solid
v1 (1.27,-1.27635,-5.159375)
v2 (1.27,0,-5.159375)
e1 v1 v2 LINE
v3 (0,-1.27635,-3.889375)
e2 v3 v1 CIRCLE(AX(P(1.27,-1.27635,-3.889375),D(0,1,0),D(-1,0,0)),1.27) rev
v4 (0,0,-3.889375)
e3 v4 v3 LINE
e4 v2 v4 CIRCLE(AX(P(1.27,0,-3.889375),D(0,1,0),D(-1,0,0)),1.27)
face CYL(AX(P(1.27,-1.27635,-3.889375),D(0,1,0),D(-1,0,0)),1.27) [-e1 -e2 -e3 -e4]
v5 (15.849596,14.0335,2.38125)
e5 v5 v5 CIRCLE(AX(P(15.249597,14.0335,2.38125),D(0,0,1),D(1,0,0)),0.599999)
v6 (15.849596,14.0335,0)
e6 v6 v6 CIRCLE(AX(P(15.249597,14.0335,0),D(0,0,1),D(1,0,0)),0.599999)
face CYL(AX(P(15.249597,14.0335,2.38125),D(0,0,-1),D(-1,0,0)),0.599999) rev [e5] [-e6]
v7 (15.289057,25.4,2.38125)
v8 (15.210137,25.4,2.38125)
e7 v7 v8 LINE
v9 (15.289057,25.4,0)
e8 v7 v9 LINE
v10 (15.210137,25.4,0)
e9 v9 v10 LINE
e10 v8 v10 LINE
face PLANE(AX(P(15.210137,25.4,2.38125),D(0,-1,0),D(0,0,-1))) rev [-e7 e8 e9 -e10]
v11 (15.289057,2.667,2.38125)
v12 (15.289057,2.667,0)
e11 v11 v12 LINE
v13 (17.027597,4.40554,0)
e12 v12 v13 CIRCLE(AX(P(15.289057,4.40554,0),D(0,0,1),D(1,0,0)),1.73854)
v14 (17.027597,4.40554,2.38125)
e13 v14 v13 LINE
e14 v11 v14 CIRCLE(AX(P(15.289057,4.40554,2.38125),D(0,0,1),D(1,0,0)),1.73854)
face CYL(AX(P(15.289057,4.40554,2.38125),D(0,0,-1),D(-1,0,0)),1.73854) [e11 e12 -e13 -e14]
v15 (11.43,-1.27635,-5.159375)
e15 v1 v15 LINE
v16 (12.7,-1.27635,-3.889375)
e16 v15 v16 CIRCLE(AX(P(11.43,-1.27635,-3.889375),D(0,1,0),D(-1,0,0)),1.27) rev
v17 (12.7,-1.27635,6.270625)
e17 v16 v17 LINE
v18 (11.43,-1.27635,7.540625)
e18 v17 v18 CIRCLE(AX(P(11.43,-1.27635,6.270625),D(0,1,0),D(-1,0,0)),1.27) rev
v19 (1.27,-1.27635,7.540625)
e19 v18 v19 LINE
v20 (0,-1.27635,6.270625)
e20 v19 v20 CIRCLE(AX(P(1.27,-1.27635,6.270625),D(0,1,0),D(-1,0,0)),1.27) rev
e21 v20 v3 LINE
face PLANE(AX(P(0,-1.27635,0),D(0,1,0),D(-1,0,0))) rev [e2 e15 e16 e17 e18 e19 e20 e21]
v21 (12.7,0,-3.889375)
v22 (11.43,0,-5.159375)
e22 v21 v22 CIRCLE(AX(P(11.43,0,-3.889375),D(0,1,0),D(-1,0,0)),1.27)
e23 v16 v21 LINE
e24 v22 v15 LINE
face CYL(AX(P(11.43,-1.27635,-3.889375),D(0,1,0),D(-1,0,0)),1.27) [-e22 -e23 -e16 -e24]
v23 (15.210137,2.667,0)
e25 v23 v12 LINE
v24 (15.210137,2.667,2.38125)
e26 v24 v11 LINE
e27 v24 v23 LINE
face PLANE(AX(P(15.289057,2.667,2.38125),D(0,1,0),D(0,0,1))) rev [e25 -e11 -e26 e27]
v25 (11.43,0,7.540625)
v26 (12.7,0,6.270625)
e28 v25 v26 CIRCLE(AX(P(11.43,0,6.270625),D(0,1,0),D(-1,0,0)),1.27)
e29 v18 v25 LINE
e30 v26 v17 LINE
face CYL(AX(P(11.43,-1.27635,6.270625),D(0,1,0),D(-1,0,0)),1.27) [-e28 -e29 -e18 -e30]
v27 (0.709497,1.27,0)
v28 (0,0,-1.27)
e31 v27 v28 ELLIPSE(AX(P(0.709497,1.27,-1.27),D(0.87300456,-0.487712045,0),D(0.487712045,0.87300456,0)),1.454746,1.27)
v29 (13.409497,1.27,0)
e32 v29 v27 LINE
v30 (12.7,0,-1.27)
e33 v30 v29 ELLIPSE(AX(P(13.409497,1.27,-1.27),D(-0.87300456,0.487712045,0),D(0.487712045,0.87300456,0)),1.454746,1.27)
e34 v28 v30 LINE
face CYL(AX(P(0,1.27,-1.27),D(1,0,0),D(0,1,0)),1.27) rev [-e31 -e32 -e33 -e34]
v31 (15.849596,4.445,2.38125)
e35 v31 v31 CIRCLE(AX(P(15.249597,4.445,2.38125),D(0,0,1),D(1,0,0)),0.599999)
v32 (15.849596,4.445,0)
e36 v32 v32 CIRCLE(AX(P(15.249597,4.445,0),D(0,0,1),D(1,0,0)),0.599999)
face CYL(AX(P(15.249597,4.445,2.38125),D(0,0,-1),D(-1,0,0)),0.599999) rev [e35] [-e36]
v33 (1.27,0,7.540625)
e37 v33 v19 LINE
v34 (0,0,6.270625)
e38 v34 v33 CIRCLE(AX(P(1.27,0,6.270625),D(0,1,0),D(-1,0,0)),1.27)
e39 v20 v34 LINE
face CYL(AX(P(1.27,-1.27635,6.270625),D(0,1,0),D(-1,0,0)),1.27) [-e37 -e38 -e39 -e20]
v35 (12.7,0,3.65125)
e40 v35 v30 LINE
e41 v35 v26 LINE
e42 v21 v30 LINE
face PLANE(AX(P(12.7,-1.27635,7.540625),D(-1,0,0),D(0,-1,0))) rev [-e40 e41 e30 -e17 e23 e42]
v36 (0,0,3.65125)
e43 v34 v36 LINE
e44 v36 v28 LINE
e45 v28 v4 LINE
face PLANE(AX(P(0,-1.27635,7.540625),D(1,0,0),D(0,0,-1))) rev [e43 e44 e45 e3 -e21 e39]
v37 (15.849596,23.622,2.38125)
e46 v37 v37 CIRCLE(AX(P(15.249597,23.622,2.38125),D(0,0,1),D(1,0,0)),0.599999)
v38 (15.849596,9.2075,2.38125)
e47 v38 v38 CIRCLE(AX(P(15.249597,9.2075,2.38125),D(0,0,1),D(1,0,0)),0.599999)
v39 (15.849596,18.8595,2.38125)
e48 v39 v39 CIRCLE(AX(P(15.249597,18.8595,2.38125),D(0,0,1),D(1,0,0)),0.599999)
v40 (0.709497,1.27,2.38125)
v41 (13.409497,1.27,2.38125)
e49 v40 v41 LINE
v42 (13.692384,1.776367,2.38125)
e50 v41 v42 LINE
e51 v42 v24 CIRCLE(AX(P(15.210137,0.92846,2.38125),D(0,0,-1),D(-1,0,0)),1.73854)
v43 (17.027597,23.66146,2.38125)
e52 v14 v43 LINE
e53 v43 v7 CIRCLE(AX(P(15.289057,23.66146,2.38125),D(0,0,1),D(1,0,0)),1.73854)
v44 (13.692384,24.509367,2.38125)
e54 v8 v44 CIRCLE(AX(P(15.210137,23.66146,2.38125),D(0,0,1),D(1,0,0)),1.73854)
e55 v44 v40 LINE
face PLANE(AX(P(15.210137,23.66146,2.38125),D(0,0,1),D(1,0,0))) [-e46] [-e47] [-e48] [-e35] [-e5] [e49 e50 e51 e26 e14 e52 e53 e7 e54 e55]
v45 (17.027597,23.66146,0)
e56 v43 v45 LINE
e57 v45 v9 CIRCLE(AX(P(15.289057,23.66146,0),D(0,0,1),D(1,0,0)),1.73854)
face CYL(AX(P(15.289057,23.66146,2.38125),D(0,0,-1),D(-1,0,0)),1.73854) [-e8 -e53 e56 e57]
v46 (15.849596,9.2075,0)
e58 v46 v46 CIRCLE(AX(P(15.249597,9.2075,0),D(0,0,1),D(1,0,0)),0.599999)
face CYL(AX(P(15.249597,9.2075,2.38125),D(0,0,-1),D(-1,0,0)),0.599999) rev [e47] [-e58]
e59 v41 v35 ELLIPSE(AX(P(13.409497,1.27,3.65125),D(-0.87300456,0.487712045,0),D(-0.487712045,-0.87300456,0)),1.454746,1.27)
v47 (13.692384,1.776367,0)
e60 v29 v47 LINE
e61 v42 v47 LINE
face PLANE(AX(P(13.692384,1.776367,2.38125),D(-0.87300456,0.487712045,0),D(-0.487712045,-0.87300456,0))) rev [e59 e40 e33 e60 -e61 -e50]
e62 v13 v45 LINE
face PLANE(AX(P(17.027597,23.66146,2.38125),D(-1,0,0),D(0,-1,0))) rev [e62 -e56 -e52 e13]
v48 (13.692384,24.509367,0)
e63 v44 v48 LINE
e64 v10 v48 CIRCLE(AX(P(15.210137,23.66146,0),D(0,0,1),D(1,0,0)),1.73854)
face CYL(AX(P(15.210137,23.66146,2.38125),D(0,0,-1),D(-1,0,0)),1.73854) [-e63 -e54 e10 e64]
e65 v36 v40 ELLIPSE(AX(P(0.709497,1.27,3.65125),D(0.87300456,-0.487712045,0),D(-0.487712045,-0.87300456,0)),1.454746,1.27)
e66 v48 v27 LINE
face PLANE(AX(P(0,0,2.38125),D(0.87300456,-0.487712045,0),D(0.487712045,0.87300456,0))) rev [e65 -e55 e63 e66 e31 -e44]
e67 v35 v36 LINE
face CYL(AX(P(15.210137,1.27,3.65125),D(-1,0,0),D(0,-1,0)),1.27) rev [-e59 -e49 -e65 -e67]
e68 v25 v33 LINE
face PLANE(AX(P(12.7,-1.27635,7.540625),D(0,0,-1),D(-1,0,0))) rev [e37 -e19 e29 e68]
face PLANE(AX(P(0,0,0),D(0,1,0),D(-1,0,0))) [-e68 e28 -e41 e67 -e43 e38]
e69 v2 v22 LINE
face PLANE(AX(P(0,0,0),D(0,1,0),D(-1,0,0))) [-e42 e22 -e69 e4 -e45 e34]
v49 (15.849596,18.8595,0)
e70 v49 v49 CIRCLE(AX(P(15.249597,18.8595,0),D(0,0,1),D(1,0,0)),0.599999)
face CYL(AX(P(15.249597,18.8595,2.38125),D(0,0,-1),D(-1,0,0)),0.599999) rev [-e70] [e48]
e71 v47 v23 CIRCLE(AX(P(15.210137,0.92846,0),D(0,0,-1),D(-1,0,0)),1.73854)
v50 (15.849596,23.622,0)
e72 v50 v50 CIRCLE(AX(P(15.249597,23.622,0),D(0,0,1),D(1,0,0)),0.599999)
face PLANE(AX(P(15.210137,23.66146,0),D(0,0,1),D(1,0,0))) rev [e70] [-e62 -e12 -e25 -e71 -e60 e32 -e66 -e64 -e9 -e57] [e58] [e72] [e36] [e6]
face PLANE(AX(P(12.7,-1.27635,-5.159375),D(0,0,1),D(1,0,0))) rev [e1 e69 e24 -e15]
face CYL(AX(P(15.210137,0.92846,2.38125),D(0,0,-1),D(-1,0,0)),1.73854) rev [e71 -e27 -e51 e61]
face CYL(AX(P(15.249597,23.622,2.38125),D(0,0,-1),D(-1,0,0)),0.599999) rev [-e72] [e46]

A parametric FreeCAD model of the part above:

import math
import FreeCAD as App
import Part
import Sketcher
from FreeCAD import Vector
Q = App.Units.Quantity


def edges_at(feature, points):
    """Names of the edges that pass closest to the given points."""
    edges = feature.Shape.Edges
    near = lambda p: min(range(len(edges)), key=lambda i: edges[i].distToShape(Part.Vertex(*p))[0])
    return sorted({f"Edge{near(p) + 1}" for p in points})


def add_polygon(sketch, points):
    """Adds a closed chain of lines whose ends are joined by coincident constraints."""
    first, n = sketch.GeometryCount, len(points)
    for a, b in zip(points, points[1:] + points[:1]):
        sketch.addGeometry(Part.LineSegment(App.Vector(*a, 0), App.Vector(*b, 0)), False)
    for i in range(n):
        sketch.addConstraint(Sketcher.Constraint("Coincident", first + i, 2, first + (i + 1) % n, 1))

doc = App.newDocument("Part")
params = doc.addObject("Spreadsheet::Sheet", "Params")
for row, (alias, value) in enumerate([
    ("sketch1_width", "0.5 in"),
    ("pad1_length", "0.09375 in"),
    ("sketch2_width", "0.5 in"),
    ("pad2_length", "1.27635 mm"),
    ("fillet_radius", "0.05 in"),
], start=1):
    params.set(f"A{row}", alias)
    params.set(f"B{row}", "=" + value)
    params.setAlias(f"B{row}", alias)

body = doc.addObject("PartDesign::Body", "Body")

# Sketch on XY plane
sketch1 = doc.addObject("Sketcher::SketchObject", "Sketch")
body.addObject(sketch1)
sketch1.AttachmentSupport = (doc.XY_Plane, [""])
sketch1.MapMode = "FlatFace"
sketch1.addGeometry(Part.LineSegment(Vector(13.69, 24.51, 0), Vector(0, 0, 0)), False)
sketch1.addGeometry(Part.LineSegment(Vector(0, 0, 0), Vector(12.7, 0, 0)), False)
sketch1.addGeometry(Part.LineSegment(Vector(12.7, 0, 0), Vector(13.69, 1.78, 0)), False)
sketch1.addGeometry(Part.ArcOfCircle(Part.Circle(Vector(15.21, 0.93, 0), Vector(0, 0, 1), 1.74), math.radians(90), math.radians(151)), False)
sketch1.addGeometry(Part.LineSegment(Vector(15.21, 2.67, 0), Vector(15.29, 2.67, 0)), False)
sketch1.addGeometry(Part.ArcOfCircle(Part.Circle(Vector(15.29, 4.41, 0), Vector(0, 0, 1), 1.74), math.radians(-90), math.radians(0)), False)
sketch1.addGeometry(Part.LineSegment(Vector(17.03, 4.41, 0), Vector(17.03, 23.66, 0)), False)
sketch1.addGeometry(Part.ArcOfCircle(Part.Circle(Vector(15.29, 23.66, 0), Vector(0, 0, 1), 1.74), math.radians(0), math.radians(90)), False)
sketch1.addGeometry(Part.LineSegment(Vector(15.29, 25.4, 0), Vector(15.21, 25.4, 0)), False)
sketch1.addGeometry(Part.ArcOfCircle(Part.Circle(Vector(15.21, 23.66, 0), Vector(0, 0, 1), 1.74), math.radians(90), math.radians(151)), False)
sketch1.addGeometry(Part.Circle(Vector(15.25, 4.45, 0), Vector(0, 0, 1), 0.6), False)
sketch1.addGeometry(Part.Circle(Vector(15.25, 9.21, 0), Vector(0, 0, 1), 0.6), False)
sketch1.addGeometry(Part.Circle(Vector(15.25, 14.03, 0), Vector(0, 0, 1), 0.6), False)
sketch1.addGeometry(Part.Circle(Vector(15.25, 18.86, 0), Vector(0, 0, 1), 0.6), False)
sketch1.addGeometry(Part.Circle(Vector(15.25, 23.62, 0), Vector(0, 0, 1), 0.6), False)
sketch1.addConstraint(Sketcher.Constraint("Coincident", 0, 2, 1, 1))
sketch1.addConstraint(Sketcher.Constraint("Coincident", 1, 2, 2, 1))
sketch1.addConstraint(Sketcher.Constraint("Tangent", 2, 2, 3, 2))
sketch1.addConstraint(Sketcher.Constraint("Tangent", 3, 1, 4, 1))
sketch1.addConstraint(Sketcher.Constraint("Tangent", 4, 2, 5, 1))
sketch1.addConstraint(Sketcher.Constraint("Tangent", 5, 2, 6, 1))
sketch1.addConstraint(Sketcher.Constraint("Tangent", 6, 2, 7, 1))
sketch1.addConstraint(Sketcher.Constraint("Tangent", 7, 2, 8, 1))
sketch1.addConstraint(Sketcher.Constraint("Tangent", 8, 2, 9, 1))
sketch1.addConstraint(Sketcher.Constraint("Tangent", 9, 2, 0, 1))
sketch1.addConstraint(Sketcher.Constraint("Horizontal", 1))
sketch1.addConstraint(Sketcher.Constraint("Horizontal", 4))
sketch1.addConstraint(Sketcher.Constraint("Vertical", 6))
sketch1.addConstraint(Sketcher.Constraint("Horizontal", 8))
sketch1.addConstraint(Sketcher.Constraint("Coincident", 0, 2, -1, 1))
sketch1.addConstraint(Sketcher.Constraint("Equal", 3, 5))
sketch1.addConstraint(Sketcher.Constraint("Equal", 5, 7))
sketch1.addConstraint(Sketcher.Constraint("Equal", 7, 9))
sketch1.addConstraint(Sketcher.Constraint("Equal", 10, 11))
sketch1.addConstraint(Sketcher.Constraint("Equal", 11, 12))
sketch1.addConstraint(Sketcher.Constraint("Equal", 12, 13))
sketch1.addConstraint(Sketcher.Constraint("Equal", 13, 14))
sketch1.addConstraint(Sketcher.Constraint("Parallel", 0, 2))
sketch1.addConstraint(Sketcher.Constraint("Vertical", 3, 3, 9, 3))
sketch1.addConstraint(Sketcher.Constraint("Vertical", 10, 3, 11, 3))
sketch1.addConstraint(Sketcher.Constraint("Vertical", 11, 3, 12, 3))
sketch1.addConstraint(Sketcher.Constraint("Vertical", 12, 3, 13, 3))
sketch1.addConstraint(Sketcher.Constraint("Vertical", 13, 3, 14, 3))
sketch1.addConstraint(Sketcher.Constraint("DistanceX", 1, 1, 1, 2, Q("0.5 in")))
sketch1.addConstraint(Sketcher.Constraint("DistanceY", -1, 1, 7, 2, Q("1 in")))
sketch1.addConstraint(Sketcher.Constraint("DistanceY", -1, 1, 14, 3, Q("0.93 in")))
sketch1.addConstraint(Sketcher.Constraint("DistanceY", 11, 3, 12, 3, Q("0.19 in")))
sketch1.addConstraint(Sketcher.Constraint("DistanceY", 12, 3, 13, 3, Q("0.19 in")))
sketch1.addConstraint(Sketcher.Constraint("DistanceY", 3, 1, 10, 3, Q("0.07 in")))
sketch1.addConstraint(Sketcher.Constraint("DistanceX", 10, 3, 5, 2, Q("0.07 in")))
sketch1.addConstraint(Sketcher.Constraint("DistanceY", -1, 1, 10, 3, Q("0.175 in")))
sketch1.addConstraint(Sketcher.Constraint("Radius", 3, 1.73854))
sketch1.addConstraint(Sketcher.Constraint("DistanceY", 10, 3, 11, 3, Q("0.1875 in")))
sketch1.addConstraint(Sketcher.Constraint("Diameter", 10, 1.199998))
sketch1.addConstraint(Sketcher.Constraint("DistanceX", 4, 1, 4, 2, 0.07892))
sketch1.setExpression("Constraints[28]", "Params.sketch1_width")
pad1 = doc.addObject("PartDesign::Pad", "Pad")
body.addObject(pad1)
pad1.Profile = sketch1
pad1.setExpression("Length", "Params.pad1_length")

# Sketch on XZ plane
sketch2 = doc.addObject("Sketcher::SketchObject", "Sketch001")
body.addObject(sketch2)
sketch2.AttachmentSupport = (doc.XZ_Plane, [""])
sketch2.MapMode = "FlatFace"
add_polygon(sketch2, [(0, 8), (0, -5), (13, -5), (13, 8)])  # lines 0-3
sketch2.addConstraint(Sketcher.Constraint("Vertical", 0))
sketch2.addConstraint(Sketcher.Constraint("Horizontal", 1))
sketch2.addConstraint(Sketcher.Constraint("Vertical", 2))
sketch2.addConstraint(Sketcher.Constraint("Horizontal", 3))
sketch2.addConstraint(Sketcher.Constraint("PointOnObject", 0, 2, -2))
sketch2.addConstraint(Sketcher.Constraint("Equal", 3, 0))
sketch2.addConstraint(Sketcher.Constraint("DistanceX", 1, 1, 1, 2, Q("0.5 in")))
sketch2.addConstraint(Sketcher.Constraint("DistanceY", 0, 2, -1, 1, Q("0.203125 in")))
sketch2.setExpression("Constraints[10]", "Params.sketch2_width")
pad2 = doc.addObject("PartDesign::Pad", "Pad001")
body.addObject(pad2)
pad2.Profile = sketch2
pad2.setExpression("Length", "Params.pad2_length")
doc.recompute()

fillet = doc.addObject("PartDesign::Fillet", "Fillet")
body.addObject(fillet)
fillet.Base = (pad2, edges_at(pad2, [
    (6.35, 0, 0),
    (6.35, 0, 2.381),
    (12.7, -0.638, 7.541),
    (12.7, -0.638, -5.159),
    (0, -0.638, -5.159),
    (0, -0.638, 7.541),
]))
fillet.setExpression("Radius", "Params.fillet_radius")

doc.recompute()
